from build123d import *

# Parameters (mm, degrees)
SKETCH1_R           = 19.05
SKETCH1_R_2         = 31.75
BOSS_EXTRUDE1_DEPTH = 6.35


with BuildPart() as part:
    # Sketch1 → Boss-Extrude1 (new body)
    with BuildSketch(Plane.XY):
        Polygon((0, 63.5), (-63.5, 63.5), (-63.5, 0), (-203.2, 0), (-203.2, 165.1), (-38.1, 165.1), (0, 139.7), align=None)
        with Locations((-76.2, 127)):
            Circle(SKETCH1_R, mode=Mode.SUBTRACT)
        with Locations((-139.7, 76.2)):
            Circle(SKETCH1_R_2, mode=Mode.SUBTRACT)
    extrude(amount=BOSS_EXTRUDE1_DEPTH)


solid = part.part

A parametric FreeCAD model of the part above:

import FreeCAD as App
import Part
import Sketcher
from FreeCAD import Vector
Q = App.Units.Quantity


def add_polygon(sketch, points):
    """Adds a closed chain of lines whose ends are joined by coincident constraints."""
    first, n = sketch.GeometryCount, len(points)
    for a, b in zip(points, points[1:] + points[:1]):
        sketch.addGeometry(Part.LineSegment(App.Vector(*a, 0), App.Vector(*b, 0)), False)
    for i in range(n):
        sketch.addConstraint(Sketcher.Constraint("Coincident", first + i, 2, first + (i + 1) % n, 1))

doc = App.newDocument("Part")
body = doc.addObject("PartDesign::Body", "Body")

# Sketch on XY plane
sketch1 = body.newObject("Sketcher::SketchObject", "Sketch")
sketch1.AttachmentSupport = (doc.getObject("XY_Plane"), [""])
sketch1.MapMode = "FlatFace"
add_polygon(sketch1, [(-64, 64), (0, 64), (0, 140), (-38, 165), (-203, 165), (-203, 0), (-64, 0)])  # lines 0-6
sketch1.addGeometry(Part.Circle(Vector(-140, 76, 0), Vector(0, 0, 1), 32), False)  # 7
sketch1.addGeometry(Part.Circle(Vector(-76, 127, 0), Vector(0, 0, 1), 19), False)  # 8
sketch1.addConstraint([
    Sketcher.Constraint("Horizontal", 0),
    Sketcher.Constraint("Vertical", 1),
    Sketcher.Constraint("Horizontal", 3),
    Sketcher.Constraint("Vertical", 4),
    Sketcher.Constraint("Horizontal", 5),
    Sketcher.Constraint("Vertical", 6),
    Sketcher.Constraint("PointOnObject", 0, 2, -2),
    Sketcher.Constraint("PointOnObject", 4, 2, -1),
    Sketcher.Constraint("Equal", 3, 4),
    Sketcher.Constraint("Equal", 0, 6),
    Sketcher.Constraint("Diameter", 7, Q("2.5 in")),
    Sketcher.Constraint("Diameter", 8, Q("1.5 in")),
    Sketcher.Constraint("DistanceY", 1, 1, 1, 2, Q("3 in")),
    Sketcher.Constraint("DistanceX", 0, 1, 0, 2, Q("2.5 in")),
    Sketcher.Constraint("DistanceX", 3, 2, 3, 1, Q("6.5 in")),
    Sketcher.Constraint("DistanceX", 5, 1, 5, 2, Q("5.5 in")),
    Sketcher.Constraint("DistanceY", -1, 1, 7, 3, Q("3 in")),
    Sketcher.Constraint("DistanceX", 8, 3, -1, 1, Q("3 in")),
    Sketcher.Constraint("DistanceY", -1, 1, 8, 3, Q("5 in")),
    Sketcher.Constraint("DistanceX", 7, 3, 2, 2, Q("4 in")),
])
pad1 = body.newObject("PartDesign::Pad", "Pad")
pad1.Profile = sketch1
pad1.Length = Q("0.25 in")

doc.recompute()
